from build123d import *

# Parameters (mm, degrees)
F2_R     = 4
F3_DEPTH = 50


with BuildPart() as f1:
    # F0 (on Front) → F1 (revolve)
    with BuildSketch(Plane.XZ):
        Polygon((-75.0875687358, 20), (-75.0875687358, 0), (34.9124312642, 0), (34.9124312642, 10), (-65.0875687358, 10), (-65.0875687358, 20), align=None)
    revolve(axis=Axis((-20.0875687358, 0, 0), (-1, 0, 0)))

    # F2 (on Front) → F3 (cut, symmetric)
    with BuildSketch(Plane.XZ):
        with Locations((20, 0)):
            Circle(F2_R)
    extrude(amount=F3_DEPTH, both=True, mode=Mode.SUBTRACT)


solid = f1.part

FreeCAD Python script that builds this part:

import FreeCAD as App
import Part
import Sketcher

doc = App.newDocument("Part")
body = doc.addObject("PartDesign::Body", "Body")

sketch1 = body.newObject("Sketcher::SketchObject", "Sketch")
sketch1.AttachmentSupport = (doc.getObject("XZ_Plane"), [""])
sketch1.MapMode = "FlatFace"
sketch1.addGeometry([
    Part.LineSegment(App.Vector(-75, 20, 0), App.Vector(-75, 0, 0)),
    Part.LineSegment(App.Vector(-75, 0, 0), App.Vector(35, 0, 0)),
    Part.LineSegment(App.Vector(35, 0, 0), App.Vector(35, 10, 0)),
    Part.LineSegment(App.Vector(35, 10, 0), App.Vector(-65, 10, 0)),
    Part.LineSegment(App.Vector(-65, 10, 0), App.Vector(-65, 20, 0)),
    Part.LineSegment(App.Vector(-65, 20, 0), App.Vector(-75, 20, 0)),
], False)
sketch1.addConstraint([
    Sketcher.Constraint("Coincident", 0, 2, 1, 1),
    Sketcher.Constraint("Coincident", 1, 2, 2, 1),
    Sketcher.Constraint("Coincident", 2, 2, 3, 1),
    Sketcher.Constraint("Coincident", 3, 2, 4, 1),
    Sketcher.Constraint("Coincident", 4, 2, 5, 1),
    Sketcher.Constraint("Coincident", 5, 2, 0, 1),
    Sketcher.Constraint("Vertical", 0),
    Sketcher.Constraint("Horizontal", 1),
    Sketcher.Constraint("Vertical", 2),
    Sketcher.Constraint("Horizontal", 3),
    Sketcher.Constraint("Vertical", 4),
    Sketcher.Constraint("Horizontal", 5),
    Sketcher.Constraint("PointOnObject", 0, 2, -1),
    Sketcher.Constraint("Equal", 5, 2),
    Sketcher.Constraint("Equal", 2, 4),
    Sketcher.Constraint("DistanceX", 1, 1, 1, 2, 110.0),
    Sketcher.Constraint("DistanceX", 3, 2, 3, 1, 100.0),
    Sketcher.Constraint("DistanceX", 0, 2, -1, 1, 75.087569),
])
revolution = body.newObject("PartDesign::Revolution", "Revolution")
revolution.Profile = sketch1
revolution.ReferenceAxis = (sketch1, ["H_Axis"])
revolution.Angle = 360

sketch2 = body.newObject("Sketcher::SketchObject", "Sketch001")
sketch2.AttachmentSupport = (doc.getObject("XZ_Plane"), [""])
sketch2.MapMode = "FlatFace"
sketch2.addGeometry(Part.Circle(App.Vector(20, 0, 0), App.Vector(0, 0, 1), 4), False)
sketch2.addConstraint([
    Sketcher.Constraint("PointOnObject", 0, 3, -1),
    Sketcher.Constraint("Diameter", 0, 8.0),
    Sketcher.Constraint("DistanceX", -1, 1, 0, 3, 20.0),
])
pocket1 = body.newObject("PartDesign::Pocket", "Pocket")
pocket1.Profile = sketch2
pocket1.Length = 100
pocket1.Midplane = True

doc.recompute()
